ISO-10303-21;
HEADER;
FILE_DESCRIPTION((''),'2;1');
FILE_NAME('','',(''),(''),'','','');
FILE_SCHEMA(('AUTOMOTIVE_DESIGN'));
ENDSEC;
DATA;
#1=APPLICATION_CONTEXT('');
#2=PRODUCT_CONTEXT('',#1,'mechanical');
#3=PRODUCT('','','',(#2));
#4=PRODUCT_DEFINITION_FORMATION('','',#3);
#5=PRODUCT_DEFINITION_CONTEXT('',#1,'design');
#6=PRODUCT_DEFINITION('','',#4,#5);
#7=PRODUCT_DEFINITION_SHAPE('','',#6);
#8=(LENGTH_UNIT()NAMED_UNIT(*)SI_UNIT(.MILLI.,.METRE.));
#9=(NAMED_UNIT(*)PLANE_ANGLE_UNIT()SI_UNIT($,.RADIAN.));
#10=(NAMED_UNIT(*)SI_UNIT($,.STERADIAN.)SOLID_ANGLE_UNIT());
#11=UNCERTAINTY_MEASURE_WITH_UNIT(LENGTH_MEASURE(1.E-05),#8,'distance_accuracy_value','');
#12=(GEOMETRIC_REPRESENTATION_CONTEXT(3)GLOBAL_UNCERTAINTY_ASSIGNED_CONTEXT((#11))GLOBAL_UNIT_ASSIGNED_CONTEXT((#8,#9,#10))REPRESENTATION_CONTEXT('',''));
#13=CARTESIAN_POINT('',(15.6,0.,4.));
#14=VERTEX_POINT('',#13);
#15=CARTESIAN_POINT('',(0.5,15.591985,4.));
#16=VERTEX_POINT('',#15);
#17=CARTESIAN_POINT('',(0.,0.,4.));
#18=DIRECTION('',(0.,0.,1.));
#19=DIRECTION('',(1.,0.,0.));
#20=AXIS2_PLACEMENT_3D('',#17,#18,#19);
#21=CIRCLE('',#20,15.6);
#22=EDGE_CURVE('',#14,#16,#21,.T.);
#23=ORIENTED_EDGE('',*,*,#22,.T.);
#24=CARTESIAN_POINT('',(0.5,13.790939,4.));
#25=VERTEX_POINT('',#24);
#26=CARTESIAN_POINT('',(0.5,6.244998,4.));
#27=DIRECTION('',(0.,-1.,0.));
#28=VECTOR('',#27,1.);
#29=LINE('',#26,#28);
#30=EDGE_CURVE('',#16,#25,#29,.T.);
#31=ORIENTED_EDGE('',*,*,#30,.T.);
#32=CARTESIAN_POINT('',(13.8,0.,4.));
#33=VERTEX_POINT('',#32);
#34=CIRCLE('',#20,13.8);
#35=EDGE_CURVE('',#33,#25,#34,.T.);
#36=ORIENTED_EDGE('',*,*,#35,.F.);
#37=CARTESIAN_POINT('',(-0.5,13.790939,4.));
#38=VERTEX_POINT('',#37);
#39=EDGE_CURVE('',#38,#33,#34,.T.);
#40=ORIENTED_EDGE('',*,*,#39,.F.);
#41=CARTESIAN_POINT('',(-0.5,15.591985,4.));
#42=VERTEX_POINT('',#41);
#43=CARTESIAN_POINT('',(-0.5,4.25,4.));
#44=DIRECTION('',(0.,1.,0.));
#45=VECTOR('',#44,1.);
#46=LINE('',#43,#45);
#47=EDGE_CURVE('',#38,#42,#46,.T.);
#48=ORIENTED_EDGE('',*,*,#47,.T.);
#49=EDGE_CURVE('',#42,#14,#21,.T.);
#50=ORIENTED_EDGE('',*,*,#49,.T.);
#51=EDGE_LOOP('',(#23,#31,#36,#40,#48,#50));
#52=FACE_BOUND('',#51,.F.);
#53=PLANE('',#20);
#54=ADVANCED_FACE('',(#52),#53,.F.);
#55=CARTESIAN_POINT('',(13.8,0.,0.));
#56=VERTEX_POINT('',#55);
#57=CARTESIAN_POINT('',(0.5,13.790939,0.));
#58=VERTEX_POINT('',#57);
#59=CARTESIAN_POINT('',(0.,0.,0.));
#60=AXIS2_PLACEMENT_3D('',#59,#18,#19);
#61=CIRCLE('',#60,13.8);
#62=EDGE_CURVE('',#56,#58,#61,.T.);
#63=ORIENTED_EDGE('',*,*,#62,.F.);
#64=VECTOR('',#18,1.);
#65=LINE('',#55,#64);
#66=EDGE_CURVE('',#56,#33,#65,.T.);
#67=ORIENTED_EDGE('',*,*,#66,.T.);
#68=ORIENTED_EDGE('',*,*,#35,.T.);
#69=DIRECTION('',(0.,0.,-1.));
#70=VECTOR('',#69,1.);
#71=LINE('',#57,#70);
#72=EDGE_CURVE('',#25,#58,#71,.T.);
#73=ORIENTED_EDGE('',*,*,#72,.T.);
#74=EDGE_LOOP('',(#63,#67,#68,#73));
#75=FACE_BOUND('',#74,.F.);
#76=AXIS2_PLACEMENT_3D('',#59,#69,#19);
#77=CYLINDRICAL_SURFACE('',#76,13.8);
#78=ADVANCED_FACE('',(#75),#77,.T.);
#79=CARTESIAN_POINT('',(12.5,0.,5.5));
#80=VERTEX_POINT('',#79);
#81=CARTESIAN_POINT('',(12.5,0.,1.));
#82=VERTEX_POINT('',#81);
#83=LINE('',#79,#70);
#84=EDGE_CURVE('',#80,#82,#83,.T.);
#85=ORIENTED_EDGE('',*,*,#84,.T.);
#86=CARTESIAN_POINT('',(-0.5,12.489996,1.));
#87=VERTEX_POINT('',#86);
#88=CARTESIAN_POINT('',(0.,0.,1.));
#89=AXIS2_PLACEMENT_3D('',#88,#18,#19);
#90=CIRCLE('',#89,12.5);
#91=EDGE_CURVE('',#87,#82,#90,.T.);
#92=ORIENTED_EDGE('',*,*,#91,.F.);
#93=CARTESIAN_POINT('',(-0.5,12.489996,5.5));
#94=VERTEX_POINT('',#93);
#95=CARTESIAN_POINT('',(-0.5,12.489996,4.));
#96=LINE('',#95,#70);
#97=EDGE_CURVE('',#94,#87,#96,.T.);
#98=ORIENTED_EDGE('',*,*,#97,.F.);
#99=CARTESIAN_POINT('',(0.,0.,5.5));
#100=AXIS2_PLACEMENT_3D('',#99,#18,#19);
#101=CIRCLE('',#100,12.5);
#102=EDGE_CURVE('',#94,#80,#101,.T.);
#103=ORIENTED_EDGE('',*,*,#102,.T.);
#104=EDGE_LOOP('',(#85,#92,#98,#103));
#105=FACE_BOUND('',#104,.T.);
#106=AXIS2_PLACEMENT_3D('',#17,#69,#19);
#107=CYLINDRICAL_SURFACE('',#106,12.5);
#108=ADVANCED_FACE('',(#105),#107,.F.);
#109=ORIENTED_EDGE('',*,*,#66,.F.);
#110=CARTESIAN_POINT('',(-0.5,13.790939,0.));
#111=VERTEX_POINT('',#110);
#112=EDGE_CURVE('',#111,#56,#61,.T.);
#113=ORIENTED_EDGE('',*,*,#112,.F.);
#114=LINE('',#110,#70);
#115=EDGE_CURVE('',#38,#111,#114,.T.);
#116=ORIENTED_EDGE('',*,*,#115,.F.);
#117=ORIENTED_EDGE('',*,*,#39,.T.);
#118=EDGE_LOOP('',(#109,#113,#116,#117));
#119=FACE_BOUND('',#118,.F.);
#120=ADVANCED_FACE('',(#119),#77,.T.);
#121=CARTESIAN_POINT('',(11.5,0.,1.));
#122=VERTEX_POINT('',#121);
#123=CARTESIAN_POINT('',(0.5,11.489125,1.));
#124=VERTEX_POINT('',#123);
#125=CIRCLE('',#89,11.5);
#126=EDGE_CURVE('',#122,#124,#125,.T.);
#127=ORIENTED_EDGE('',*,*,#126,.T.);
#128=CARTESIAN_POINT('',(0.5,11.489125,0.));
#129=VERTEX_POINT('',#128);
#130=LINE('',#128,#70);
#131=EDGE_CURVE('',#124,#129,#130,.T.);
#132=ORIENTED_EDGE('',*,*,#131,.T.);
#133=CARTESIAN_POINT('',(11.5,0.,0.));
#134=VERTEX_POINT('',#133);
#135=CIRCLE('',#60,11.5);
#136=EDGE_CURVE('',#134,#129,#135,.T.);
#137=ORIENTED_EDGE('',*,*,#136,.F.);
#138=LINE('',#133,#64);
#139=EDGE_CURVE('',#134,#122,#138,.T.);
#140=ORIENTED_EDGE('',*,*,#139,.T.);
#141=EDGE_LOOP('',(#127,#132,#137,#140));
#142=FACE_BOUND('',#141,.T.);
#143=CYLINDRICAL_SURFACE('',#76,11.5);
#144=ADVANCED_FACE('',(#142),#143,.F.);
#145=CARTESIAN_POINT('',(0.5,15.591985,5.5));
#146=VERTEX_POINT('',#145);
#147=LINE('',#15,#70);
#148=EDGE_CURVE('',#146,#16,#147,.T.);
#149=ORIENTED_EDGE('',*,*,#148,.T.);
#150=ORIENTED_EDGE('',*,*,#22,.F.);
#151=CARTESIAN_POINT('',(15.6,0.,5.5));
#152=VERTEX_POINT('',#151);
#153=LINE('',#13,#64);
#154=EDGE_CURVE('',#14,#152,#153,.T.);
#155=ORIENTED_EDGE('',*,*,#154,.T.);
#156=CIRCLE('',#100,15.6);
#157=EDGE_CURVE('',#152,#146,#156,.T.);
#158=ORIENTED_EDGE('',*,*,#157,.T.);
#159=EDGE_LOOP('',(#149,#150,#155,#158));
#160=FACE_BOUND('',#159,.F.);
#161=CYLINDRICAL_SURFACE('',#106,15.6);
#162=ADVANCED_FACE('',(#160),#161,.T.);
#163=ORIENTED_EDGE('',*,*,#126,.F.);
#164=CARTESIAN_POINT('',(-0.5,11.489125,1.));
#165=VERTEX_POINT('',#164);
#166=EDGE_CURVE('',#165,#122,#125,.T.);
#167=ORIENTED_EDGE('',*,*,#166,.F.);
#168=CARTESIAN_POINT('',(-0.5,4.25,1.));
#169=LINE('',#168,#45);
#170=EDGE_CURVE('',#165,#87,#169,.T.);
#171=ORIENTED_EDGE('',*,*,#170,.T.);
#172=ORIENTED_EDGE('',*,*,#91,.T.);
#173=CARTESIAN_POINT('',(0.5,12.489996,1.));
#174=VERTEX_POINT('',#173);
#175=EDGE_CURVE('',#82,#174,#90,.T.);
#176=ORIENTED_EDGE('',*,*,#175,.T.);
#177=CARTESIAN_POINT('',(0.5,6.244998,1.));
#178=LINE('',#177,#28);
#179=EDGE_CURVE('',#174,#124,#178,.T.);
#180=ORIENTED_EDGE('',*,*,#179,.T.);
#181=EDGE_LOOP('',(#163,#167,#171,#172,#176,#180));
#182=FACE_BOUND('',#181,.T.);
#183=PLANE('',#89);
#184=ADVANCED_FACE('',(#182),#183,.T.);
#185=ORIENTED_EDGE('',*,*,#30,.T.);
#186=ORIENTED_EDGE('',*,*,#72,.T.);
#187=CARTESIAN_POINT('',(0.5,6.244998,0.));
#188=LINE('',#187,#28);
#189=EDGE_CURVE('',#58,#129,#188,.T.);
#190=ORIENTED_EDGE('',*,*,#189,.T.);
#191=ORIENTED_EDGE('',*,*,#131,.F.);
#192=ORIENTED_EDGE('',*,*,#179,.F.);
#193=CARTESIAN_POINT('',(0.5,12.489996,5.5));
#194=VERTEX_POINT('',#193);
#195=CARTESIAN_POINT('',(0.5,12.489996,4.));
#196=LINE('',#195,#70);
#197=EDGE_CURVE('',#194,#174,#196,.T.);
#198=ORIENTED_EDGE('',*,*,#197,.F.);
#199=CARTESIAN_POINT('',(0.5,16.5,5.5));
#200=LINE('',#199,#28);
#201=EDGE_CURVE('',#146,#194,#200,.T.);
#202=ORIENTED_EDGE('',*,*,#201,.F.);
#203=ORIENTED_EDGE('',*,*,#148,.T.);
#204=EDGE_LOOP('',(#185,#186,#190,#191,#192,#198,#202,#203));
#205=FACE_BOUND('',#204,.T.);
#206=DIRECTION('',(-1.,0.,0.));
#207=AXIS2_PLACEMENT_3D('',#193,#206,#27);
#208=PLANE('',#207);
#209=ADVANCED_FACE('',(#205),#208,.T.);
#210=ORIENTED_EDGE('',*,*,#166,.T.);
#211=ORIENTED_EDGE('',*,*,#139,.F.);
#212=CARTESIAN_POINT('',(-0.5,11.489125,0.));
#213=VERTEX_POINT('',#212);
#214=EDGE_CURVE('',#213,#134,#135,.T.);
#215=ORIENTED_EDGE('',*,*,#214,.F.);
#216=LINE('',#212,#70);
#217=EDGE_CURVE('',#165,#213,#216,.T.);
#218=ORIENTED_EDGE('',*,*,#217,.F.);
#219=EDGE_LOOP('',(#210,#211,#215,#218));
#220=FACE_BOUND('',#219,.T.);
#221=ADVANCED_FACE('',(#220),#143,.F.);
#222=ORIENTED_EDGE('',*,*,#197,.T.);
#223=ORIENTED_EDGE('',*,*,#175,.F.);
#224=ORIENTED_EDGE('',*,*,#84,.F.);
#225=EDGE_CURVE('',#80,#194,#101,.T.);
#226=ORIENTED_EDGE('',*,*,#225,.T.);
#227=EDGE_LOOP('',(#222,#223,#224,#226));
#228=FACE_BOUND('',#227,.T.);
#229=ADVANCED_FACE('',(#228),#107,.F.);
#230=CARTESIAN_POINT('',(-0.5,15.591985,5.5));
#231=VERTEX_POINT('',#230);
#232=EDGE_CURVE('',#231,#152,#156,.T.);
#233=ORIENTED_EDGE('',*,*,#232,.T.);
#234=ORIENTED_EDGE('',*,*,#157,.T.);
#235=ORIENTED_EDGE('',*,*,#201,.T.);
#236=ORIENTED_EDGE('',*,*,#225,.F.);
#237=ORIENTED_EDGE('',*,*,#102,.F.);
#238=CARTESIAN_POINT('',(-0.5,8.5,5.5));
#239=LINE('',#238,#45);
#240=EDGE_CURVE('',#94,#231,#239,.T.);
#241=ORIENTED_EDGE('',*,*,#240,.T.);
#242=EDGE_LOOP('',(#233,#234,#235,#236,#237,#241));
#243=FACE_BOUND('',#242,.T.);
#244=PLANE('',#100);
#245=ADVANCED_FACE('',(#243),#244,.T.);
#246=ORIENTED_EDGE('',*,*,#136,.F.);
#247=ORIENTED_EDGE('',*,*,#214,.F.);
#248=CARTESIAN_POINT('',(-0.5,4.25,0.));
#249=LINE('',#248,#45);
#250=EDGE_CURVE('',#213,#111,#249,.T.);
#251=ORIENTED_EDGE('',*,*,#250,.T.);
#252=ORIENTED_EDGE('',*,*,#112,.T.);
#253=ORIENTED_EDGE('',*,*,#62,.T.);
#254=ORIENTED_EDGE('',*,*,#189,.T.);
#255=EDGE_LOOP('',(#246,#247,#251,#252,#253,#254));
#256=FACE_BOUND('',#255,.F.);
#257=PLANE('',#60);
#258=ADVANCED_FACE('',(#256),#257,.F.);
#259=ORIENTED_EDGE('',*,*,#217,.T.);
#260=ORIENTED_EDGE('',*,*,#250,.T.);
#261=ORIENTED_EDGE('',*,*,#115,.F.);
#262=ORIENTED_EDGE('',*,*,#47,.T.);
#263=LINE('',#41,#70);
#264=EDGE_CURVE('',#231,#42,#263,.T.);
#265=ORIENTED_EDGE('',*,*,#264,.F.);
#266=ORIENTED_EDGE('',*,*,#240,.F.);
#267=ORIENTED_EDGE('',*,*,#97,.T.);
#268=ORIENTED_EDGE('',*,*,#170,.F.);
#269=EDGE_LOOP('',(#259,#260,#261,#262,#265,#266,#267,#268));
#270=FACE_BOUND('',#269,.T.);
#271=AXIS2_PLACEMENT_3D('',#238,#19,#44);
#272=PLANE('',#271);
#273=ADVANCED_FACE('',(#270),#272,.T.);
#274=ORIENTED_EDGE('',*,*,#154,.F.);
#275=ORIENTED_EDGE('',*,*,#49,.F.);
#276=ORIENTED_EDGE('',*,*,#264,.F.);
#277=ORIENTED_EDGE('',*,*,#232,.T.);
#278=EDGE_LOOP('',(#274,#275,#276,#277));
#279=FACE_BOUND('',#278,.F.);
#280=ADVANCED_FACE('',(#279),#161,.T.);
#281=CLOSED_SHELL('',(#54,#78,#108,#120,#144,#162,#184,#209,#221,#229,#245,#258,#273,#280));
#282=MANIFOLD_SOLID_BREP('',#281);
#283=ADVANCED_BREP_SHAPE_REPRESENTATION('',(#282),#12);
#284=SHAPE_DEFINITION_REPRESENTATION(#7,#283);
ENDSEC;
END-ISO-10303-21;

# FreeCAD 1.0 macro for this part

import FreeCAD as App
import Part
import Sketcher
Q = App.Units.Quantity


def add_polygon(sketch, points):
    """Adds a closed chain of lines whose ends are joined by coincident constraints."""
    first, n = sketch.GeometryCount, len(points)
    for a, b in zip(points, points[1:] + points[:1]):
        sketch.addGeometry(Part.LineSegment(App.Vector(*a, 0), App.Vector(*b, 0)), False)
    for i in range(n):
        sketch.addConstraint(Sketcher.Constraint("Coincident", first + i, 2, first + (i + 1) % n, 1))

doc = App.newDocument("Part")
body = doc.addObject("PartDesign::Body", "Body")

sketch1 = body.newObject("Sketcher::SketchObject", "Sketch")
sketch1.AttachmentSupport = (doc.getObject("XY_Plane"), [""])
sketch1.MapMode = "FlatFace"
sketch1.addGeometry(Part.Circle(App.Vector(0, 0, 0), App.Vector(0, 0, 1), 12), False)
sketch1.addGeometry(Part.Circle(App.Vector(0, 0, 0), App.Vector(0, 0, 1), 12), False)
sketch1.addConstraint(Sketcher.Constraint("Coincident", 0, 3, -1, 1))
sketch1.addConstraint(Sketcher.Constraint("Coincident", 1, 3, -1, 1))
sketch1.addConstraint(Sketcher.Constraint("Diameter", 0, Q("25 mm")))
sketch1.addConstraint(Sketcher.Constraint("Diameter", 1, Q("23 mm")))
pad1 = body.newObject("PartDesign::Pad", "Pad")
pad1.Profile = sketch1
pad1.Length = 1

sketch2 = body.newObject("Sketcher::SketchObject", "Sketch001")
sketch2.AttachmentSupport = (doc.getObject("XY_Plane"), [""])
sketch2.MapMode = "FlatFace"
sketch2.addGeometry(Part.Circle(App.Vector(0, 0, 0), App.Vector(0, 0, 1), 14), False)
sketch2.addGeometry(Part.Circle(App.Vector(0, 0, 0), App.Vector(0, 0, 1), 12), False)
sketch2.addConstraint(Sketcher.Constraint("Coincident", 0, 3, -1, 1))
sketch2.addConstraint(Sketcher.Constraint("Coincident", 1, 3, -1, 1))
sketch2.addConstraint(Sketcher.Constraint("Diameter", 1, Q("25 mm")))
sketch2.addConstraint(Sketcher.Constraint("Diameter", 0, Q("27.6 mm")))
pad2 = body.newObject("PartDesign::Pad", "Pad001")
pad2.Profile = sketch2
pad2.Length = 4

sketch3 = body.newObject("Sketcher::SketchObject", "Sketch002")
sketch3.AttachmentSupport = (doc.getObject("XY_Plane"), [""])
sketch3.MapMode = "FlatFace"
sketch3.AttachmentOffset = App.Placement(App.Vector(0, 0, 4), App.Rotation())
sketch3.addGeometry(Part.Circle(App.Vector(0, 0, 0), App.Vector(0, 0, 1), 16), False)
sketch3.addGeometry(Part.Circle(App.Vector(0, 0, 0), App.Vector(0, 0, 1), 12), False)
sketch3.addConstraint(Sketcher.Constraint("Coincident", 0, 3, -1, 1))
sketch3.addConstraint(Sketcher.Constraint("Coincident", 1, 3, -1, 1))
sketch3.addConstraint(Sketcher.Constraint("Diameter", 1, Q("25 mm")))
sketch3.addConstraint(Sketcher.Constraint("Diameter", 0, Q("31.2 mm")))
pad3 = body.newObject("PartDesign::Pad", "Pad002")
pad3.Profile = sketch3
pad3.Length = 1.5

sketch4 = body.newObject("Sketcher::SketchObject", "Sketch003")
sketch4.AttachmentSupport = (doc.getObject("XY_Plane"), [""])
sketch4.MapMode = "FlatFace"
sketch4.AttachmentOffset = App.Placement(App.Vector(0, 0, 5.5), App.Rotation())
add_polygon(sketch4, [(-0.5, 8.5), (0.5, 8.5), (0.5, 16.5), (-0.5, 16.5)])
sketch4.addConstraint(Sketcher.Constraint("Horizontal", 0))
sketch4.addConstraint(Sketcher.Constraint("Vertical", 1))
sketch4.addConstraint(Sketcher.Constraint("Horizontal", 2))
sketch4.addConstraint(Sketcher.Constraint("Vertical", 3))
sketch4.addConstraint(Sketcher.Constraint("DistanceX", 0, 1, 0, 2, Q("1 mm")))
sketch4.addConstraint(Sketcher.Constraint("DistanceY", 1, 1, 1, 2, Q("8 mm")))
sketch4.addConstraint(Sketcher.Constraint("DistanceX", -1, 1, 0, 2, Q("0.5 mm")))
sketch4.addConstraint(Sketcher.Constraint("DistanceY", -1, 1, 0, 2, Q("8.5 mm")))
pocket1 = body.newObject("PartDesign::Pocket", "Pocket")
pocket1.Profile = sketch4
pocket1.Length = 10

doc.recompute()
